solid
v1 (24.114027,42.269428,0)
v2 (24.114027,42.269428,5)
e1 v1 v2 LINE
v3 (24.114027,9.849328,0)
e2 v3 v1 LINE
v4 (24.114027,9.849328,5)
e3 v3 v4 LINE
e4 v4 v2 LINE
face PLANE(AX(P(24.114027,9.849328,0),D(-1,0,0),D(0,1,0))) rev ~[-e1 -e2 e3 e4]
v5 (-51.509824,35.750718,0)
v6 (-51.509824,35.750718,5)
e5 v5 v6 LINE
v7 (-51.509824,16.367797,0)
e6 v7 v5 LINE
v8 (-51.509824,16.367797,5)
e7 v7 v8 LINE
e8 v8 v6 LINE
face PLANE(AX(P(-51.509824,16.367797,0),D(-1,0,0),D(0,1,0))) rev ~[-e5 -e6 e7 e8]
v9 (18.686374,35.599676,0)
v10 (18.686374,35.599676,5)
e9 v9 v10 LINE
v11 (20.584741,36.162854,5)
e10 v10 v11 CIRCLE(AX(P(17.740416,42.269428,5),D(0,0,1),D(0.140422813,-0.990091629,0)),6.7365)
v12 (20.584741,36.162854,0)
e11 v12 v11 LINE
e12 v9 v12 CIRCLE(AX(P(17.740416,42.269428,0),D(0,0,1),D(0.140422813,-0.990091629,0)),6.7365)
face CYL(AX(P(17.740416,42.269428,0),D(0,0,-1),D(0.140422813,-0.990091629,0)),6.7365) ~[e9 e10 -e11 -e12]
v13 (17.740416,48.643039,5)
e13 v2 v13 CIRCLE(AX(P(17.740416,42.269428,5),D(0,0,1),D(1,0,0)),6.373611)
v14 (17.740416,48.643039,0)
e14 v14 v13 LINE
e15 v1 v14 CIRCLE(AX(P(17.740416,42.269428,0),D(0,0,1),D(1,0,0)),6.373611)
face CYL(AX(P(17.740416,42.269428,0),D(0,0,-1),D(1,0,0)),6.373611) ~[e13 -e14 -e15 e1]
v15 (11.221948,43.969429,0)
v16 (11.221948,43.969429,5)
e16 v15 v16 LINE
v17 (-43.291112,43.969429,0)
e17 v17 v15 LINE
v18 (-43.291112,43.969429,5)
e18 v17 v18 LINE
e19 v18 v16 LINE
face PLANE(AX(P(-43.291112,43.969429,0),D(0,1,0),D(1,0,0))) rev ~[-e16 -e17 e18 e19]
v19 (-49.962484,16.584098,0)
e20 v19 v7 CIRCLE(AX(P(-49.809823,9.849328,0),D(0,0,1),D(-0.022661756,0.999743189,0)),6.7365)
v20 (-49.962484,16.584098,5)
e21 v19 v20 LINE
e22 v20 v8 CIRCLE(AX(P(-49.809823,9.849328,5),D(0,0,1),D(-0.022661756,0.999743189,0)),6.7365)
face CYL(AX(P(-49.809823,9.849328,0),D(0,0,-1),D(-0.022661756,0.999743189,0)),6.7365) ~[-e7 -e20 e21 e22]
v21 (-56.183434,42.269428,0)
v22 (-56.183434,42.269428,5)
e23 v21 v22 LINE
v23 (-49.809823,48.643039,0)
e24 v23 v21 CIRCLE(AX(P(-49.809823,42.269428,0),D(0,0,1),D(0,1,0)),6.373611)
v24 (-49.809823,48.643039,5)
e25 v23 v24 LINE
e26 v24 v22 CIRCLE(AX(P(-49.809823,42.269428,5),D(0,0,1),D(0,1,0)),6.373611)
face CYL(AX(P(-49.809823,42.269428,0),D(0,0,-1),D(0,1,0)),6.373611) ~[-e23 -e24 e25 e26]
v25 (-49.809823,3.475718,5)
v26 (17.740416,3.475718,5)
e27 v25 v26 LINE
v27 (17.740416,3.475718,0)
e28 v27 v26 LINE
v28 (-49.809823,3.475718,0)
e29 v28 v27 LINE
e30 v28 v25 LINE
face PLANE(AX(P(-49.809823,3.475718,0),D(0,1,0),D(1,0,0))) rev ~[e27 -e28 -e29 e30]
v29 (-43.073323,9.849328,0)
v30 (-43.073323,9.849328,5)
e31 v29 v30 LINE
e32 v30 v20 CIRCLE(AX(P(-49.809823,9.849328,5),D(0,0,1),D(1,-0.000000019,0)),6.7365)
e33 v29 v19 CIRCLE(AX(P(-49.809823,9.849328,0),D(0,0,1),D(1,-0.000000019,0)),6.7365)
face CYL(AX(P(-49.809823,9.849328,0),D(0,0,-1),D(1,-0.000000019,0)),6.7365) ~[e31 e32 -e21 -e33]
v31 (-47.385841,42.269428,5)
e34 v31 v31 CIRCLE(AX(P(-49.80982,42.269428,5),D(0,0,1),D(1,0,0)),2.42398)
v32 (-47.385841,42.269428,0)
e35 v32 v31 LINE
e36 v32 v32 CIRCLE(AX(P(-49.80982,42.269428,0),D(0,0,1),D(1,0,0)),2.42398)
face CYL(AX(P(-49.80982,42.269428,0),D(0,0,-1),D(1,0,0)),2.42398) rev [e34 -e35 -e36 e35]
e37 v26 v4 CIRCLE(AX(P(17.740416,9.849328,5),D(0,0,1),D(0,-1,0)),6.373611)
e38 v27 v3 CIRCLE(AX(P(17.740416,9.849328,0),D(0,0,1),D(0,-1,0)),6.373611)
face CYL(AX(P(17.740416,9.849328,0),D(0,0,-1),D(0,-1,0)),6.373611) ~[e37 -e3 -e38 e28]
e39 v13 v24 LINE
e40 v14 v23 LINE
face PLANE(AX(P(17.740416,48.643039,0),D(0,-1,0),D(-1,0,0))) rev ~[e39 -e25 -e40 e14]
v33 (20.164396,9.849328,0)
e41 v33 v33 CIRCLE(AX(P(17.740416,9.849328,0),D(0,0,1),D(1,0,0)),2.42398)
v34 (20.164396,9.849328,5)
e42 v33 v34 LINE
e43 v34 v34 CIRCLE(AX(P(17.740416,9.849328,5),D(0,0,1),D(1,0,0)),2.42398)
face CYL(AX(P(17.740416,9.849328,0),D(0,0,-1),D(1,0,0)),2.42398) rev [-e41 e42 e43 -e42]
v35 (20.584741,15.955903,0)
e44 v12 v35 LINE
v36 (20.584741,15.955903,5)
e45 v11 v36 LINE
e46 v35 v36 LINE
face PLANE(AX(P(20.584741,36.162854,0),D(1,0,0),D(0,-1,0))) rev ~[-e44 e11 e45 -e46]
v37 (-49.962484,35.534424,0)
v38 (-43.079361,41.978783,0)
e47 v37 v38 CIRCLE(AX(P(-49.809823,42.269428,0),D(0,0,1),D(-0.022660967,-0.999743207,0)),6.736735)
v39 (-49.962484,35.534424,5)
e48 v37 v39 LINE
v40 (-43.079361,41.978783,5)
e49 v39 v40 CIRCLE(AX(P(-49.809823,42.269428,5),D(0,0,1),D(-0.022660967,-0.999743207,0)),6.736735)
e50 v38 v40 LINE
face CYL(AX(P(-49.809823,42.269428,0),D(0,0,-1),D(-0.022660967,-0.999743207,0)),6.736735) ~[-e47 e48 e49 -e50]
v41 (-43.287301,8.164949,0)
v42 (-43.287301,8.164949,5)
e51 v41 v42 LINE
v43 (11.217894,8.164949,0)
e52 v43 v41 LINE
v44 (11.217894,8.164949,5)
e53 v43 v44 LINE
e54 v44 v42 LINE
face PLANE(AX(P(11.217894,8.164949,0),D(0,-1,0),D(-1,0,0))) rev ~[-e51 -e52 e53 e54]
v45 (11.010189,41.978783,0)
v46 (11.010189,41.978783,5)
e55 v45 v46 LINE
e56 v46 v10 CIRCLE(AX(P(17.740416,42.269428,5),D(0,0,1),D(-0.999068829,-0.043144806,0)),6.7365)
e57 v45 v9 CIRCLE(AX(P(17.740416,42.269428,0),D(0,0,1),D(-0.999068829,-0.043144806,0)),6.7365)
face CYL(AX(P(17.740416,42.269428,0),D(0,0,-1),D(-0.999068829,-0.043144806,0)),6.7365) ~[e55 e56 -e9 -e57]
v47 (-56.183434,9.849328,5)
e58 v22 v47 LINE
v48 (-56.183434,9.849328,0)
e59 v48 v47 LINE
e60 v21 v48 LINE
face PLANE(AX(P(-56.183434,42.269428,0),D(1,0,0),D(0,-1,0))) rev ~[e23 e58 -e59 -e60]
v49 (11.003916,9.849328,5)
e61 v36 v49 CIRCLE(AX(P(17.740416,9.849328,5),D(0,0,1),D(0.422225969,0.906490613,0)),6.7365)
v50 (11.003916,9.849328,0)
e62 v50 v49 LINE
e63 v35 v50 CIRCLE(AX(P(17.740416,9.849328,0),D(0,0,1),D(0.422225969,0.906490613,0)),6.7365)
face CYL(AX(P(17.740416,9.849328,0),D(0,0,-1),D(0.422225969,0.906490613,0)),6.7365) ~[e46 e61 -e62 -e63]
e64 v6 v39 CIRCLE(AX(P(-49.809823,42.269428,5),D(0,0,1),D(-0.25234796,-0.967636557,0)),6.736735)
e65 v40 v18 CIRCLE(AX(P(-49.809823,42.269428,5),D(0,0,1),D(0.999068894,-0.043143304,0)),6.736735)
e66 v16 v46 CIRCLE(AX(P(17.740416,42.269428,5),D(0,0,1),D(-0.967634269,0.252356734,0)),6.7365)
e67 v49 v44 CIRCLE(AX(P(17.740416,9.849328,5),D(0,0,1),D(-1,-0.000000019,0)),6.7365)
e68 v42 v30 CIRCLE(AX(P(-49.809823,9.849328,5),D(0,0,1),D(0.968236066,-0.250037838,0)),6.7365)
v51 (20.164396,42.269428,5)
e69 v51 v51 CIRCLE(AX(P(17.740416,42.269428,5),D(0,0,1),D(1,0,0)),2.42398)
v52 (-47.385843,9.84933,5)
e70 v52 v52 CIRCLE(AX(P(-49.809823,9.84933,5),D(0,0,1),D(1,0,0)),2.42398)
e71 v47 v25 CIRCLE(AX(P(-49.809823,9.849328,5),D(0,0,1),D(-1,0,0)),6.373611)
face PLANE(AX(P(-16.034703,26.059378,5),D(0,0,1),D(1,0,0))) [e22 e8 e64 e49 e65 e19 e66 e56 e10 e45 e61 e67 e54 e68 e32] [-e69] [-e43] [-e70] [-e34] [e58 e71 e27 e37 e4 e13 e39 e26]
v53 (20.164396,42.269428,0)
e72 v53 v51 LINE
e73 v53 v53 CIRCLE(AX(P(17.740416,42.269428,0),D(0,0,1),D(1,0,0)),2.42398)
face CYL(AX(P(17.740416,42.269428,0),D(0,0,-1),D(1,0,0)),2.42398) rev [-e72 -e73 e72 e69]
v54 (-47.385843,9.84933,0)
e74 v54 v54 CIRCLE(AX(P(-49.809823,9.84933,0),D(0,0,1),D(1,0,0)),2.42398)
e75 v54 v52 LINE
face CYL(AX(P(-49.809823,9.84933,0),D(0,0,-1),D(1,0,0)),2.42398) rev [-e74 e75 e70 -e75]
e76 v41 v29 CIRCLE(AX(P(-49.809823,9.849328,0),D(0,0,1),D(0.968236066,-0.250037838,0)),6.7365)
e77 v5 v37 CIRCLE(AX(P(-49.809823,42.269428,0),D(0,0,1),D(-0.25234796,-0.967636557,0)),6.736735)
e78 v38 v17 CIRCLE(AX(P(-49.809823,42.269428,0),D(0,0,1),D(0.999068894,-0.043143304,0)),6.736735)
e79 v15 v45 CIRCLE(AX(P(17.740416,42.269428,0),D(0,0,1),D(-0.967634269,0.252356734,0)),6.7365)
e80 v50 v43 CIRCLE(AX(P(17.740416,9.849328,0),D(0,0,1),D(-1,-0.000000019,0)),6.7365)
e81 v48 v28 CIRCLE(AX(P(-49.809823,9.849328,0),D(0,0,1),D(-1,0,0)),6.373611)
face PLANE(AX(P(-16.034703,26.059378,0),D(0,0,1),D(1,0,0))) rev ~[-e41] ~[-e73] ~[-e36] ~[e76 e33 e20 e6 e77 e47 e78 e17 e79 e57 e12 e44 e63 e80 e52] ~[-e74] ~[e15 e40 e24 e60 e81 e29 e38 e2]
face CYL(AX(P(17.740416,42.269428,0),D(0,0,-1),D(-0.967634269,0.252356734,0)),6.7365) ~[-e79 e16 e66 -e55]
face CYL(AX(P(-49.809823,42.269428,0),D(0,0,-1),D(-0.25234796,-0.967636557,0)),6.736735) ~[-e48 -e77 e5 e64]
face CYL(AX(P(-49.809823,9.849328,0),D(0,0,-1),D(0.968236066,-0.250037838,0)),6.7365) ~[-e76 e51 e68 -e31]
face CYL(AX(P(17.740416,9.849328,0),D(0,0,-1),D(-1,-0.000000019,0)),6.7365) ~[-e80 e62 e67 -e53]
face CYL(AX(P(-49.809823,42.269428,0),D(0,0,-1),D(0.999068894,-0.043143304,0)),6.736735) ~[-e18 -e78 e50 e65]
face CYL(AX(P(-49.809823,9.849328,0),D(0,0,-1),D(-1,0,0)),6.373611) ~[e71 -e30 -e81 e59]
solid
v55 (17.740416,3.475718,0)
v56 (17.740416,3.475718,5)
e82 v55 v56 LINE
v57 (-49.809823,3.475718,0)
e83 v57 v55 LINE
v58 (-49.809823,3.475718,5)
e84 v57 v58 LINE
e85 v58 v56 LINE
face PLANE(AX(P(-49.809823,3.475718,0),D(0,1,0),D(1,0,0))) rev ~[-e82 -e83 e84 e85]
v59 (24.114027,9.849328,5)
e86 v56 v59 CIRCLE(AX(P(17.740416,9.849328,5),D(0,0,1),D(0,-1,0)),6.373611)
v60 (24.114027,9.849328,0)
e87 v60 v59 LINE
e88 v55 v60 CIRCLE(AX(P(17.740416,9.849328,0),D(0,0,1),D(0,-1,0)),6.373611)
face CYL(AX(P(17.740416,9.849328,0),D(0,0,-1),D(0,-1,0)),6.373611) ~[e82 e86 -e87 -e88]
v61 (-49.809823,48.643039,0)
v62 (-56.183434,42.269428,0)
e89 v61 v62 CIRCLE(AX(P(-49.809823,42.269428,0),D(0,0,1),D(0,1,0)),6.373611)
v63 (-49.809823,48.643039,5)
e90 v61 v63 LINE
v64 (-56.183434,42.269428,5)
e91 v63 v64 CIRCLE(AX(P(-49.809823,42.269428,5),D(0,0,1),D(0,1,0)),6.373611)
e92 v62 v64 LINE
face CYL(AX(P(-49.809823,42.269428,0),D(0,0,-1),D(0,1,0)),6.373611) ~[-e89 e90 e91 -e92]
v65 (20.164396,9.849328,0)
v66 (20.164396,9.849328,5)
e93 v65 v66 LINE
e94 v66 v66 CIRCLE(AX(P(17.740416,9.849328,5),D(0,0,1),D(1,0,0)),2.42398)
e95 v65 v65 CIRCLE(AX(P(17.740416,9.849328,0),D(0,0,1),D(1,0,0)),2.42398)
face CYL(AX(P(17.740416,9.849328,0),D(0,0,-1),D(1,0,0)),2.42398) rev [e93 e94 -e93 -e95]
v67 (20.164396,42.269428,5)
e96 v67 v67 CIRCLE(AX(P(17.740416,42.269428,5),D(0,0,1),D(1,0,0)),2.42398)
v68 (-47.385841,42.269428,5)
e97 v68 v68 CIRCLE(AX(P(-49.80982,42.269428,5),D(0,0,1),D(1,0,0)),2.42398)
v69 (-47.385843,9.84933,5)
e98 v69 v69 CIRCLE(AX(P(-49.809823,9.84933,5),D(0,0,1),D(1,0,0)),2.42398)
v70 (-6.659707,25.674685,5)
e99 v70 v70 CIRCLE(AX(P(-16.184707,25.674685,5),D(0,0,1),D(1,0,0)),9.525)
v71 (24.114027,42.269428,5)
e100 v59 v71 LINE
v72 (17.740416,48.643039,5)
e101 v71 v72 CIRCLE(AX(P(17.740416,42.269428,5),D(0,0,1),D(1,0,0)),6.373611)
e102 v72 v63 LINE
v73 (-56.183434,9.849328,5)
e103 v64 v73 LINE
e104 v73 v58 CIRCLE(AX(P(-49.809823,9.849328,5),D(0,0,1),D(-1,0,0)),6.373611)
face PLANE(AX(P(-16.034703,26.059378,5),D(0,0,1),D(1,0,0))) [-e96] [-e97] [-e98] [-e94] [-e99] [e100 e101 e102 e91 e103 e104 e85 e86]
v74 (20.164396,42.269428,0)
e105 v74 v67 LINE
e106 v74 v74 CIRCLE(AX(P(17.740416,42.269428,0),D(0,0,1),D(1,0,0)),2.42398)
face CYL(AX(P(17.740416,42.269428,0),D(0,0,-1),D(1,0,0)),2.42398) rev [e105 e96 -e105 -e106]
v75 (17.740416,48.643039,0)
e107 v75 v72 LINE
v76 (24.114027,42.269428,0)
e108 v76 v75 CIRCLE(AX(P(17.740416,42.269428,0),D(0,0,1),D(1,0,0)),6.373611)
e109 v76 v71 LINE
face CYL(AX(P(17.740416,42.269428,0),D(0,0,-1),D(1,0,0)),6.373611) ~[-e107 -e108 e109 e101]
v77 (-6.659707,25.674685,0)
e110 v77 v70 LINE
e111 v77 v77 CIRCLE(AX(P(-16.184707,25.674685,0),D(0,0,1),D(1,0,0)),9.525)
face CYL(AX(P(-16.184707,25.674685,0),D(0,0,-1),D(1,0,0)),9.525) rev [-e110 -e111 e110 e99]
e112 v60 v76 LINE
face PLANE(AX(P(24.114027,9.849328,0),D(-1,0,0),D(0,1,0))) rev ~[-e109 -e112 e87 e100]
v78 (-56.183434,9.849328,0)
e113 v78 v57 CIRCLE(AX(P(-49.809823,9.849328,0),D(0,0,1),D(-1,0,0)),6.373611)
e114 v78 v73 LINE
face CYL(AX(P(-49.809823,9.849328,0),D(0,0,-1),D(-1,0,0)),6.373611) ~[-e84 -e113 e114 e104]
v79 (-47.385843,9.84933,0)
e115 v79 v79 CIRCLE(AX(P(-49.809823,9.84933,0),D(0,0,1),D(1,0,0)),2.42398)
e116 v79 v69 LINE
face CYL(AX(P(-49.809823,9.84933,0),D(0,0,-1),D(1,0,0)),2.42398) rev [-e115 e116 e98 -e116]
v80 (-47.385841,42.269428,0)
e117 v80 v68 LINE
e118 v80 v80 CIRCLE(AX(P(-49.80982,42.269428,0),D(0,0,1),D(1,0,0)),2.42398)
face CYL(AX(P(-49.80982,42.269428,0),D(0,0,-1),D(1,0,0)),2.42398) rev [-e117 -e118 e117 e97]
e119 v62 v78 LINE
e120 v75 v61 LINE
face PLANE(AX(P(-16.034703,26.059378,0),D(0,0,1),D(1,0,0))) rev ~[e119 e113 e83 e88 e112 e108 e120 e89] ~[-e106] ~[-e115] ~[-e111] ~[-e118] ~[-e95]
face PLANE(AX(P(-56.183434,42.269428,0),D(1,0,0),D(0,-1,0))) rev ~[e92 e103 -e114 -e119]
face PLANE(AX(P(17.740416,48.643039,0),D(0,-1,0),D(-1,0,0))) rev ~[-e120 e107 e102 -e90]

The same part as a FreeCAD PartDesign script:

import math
import FreeCAD as App
import Part
import Sketcher

V = App.Vector

doc = App.newDocument("Part")
body = doc.addObject("PartDesign::Body", "Body")

sketch1 = body.newObject("Sketcher::SketchObject", "Sketch")
sketch1.AttachmentSupport = (doc.getObject("XY_Plane"), [""])
sketch1.MapMode = "FlatFace"
sketch1.addGeometry([
    Part.LineSegment(V(17.7, 48.6, 0), V(-49.8, 48.6, 0)),
    Part.ArcOfCircle(Part.Circle(V(-49.8, 42.3, 0), V(0, 0, 1), 6.4), math.radians(90), math.radians(180)),
    Part.LineSegment(V(-56.2, 42.3, 0), V(-56.2, 9.8, 0)),
    Part.ArcOfCircle(Part.Circle(V(-49.8, 9.8, 0), V(0, 0, 1), 6.4), math.radians(180), math.radians(270)),
    Part.LineSegment(V(-49.8, 3.5, 0), V(17.7, 3.5, 0)),
    Part.ArcOfCircle(Part.Circle(V(17.7, 9.8, 0), V(0, 0, 1), 6.4), math.radians(-90), math.radians(0)),
    Part.LineSegment(V(24.1, 9.8, 0), V(24.1, 42.3, 0)),
    Part.ArcOfCircle(Part.Circle(V(17.7, 42.3, 0), V(0, 0, 1), 6.4), math.radians(0), math.radians(90)),
    Part.Circle(V(-49.8, 9.8, 0), V(0, 0, 1), 2.4),
    Part.Circle(V(17.7, 9.8, 0), V(0, 0, 1), 2.4),
    Part.Circle(V(-49.8, 42.3, 0), V(0, 0, 1), 2.4),
    Part.ArcOfCircle(Part.Circle(V(17.7, 42.3, 0), V(0, 0, 1), 6.7), math.radians(-178), math.radians(-82)),
    Part.ArcOfCircle(Part.Circle(V(17.7, 42.3, 0), V(0, 0, 1), 6.7), math.radians(-81.93), math.radians(-65.02)),
    Part.LineSegment(V(20.6, 36.2, 0), V(20.6, 16, 0)),
    Part.ArcOfCircle(Part.Circle(V(17.7, 9.8, 0), V(0, 0, 1), 6.7), math.radians(65), math.radians(180)),
    Part.ArcOfCircle(Part.Circle(V(17.7, 9.8, 0), V(0, 0, 1), 6.7), math.radians(-180), math.radians(-165.52)),
    Part.LineSegment(V(11.2, 8.2, 0), V(-43.3, 8.2, 0)),
    Part.ArcOfCircle(Part.Circle(V(-49.8, 9.8, 0), V(0, 0, 1), 6.7), math.radians(-14.48), math.radians(0)),
    Part.ArcOfCircle(Part.Circle(V(-49.8, 9.8, 0), V(0, 0, 1), 6.7), math.radians(0), math.radians(91)),
    Part.ArcOfCircle(Part.Circle(V(-49.8, 9.8, 0), V(0, 0, 1), 6.7), math.radians(91.3), math.radians(104.62)),
    Part.LineSegment(V(-51.5, 16.4, 0), V(-51.5, 35.8, 0)),
    Part.ArcOfCircle(Part.Circle(V(-49.8, 42.3, 0), V(0, 0, 1), 6.7), math.radians(-104.62), math.radians(-91.3)),
    Part.ArcOfCircle(Part.Circle(V(-49.8, 42.3, 0), V(0, 0, 1), 6.7), math.radians(-91), math.radians(-2)),
    Part.ArcOfCircle(Part.Circle(V(-49.8, 42.3, 0), V(0, 0, 1), 6.7), math.radians(-2.47), math.radians(14.62)),
    Part.LineSegment(V(-43.3, 44, 0), V(11.2, 44, 0)),
    Part.ArcOfCircle(Part.Circle(V(17.7, 42.3, 0), V(0, 0, 1), 6.7), math.radians(165.38), math.radians(182.47)),
    Part.Circle(V(17.7, 42.3, 0), V(0, 0, 1), 2.4),
], False)
sketch1.addConstraint([
    Sketcher.Constraint("Tangent", 0, 2, 1, 1),
    Sketcher.Constraint("Tangent", 1, 2, 2, 1),
    Sketcher.Constraint("Tangent", 2, 2, 3, 1),
    Sketcher.Constraint("Tangent", 3, 2, 4, 1),
    Sketcher.Constraint("Tangent", 4, 2, 5, 1),
    Sketcher.Constraint("Tangent", 5, 2, 6, 1),
    Sketcher.Constraint("Tangent", 6, 2, 7, 1),
    Sketcher.Constraint("Tangent", 7, 2, 0, 1),
    Sketcher.Constraint("Tangent", 11, 2, 12, 1),
    Sketcher.Constraint("Coincident", 12, 2, 13, 1),
    Sketcher.Constraint("Coincident", 13, 2, 14, 1),
    Sketcher.Constraint("Tangent", 14, 2, 15, 1),
    Sketcher.Constraint("Coincident", 15, 2, 16, 1),
    Sketcher.Constraint("Coincident", 16, 2, 17, 1),
    Sketcher.Constraint("Tangent", 17, 2, 18, 1),
    Sketcher.Constraint("Tangent", 18, 2, 19, 1),
    Sketcher.Constraint("Coincident", 19, 2, 20, 1),
    Sketcher.Constraint("Coincident", 20, 2, 21, 1),
    Sketcher.Constraint("Tangent", 21, 2, 22, 1),
    Sketcher.Constraint("Tangent", 22, 2, 23, 1),
    Sketcher.Constraint("Coincident", 23, 2, 24, 1),
    Sketcher.Constraint("Coincident", 24, 2, 25, 1),
    Sketcher.Constraint("Tangent", 25, 2, 11, 1),
    Sketcher.Constraint("Horizontal", 0),
    Sketcher.Constraint("Vertical", 2),
    Sketcher.Constraint("Horizontal", 4),
    Sketcher.Constraint("Vertical", 6),
    Sketcher.Constraint("Vertical", 13),
    Sketcher.Constraint("Horizontal", 16),
    Sketcher.Constraint("Vertical", 20),
    Sketcher.Constraint("Horizontal", 24),
    Sketcher.Constraint("Coincident", 8, 3, 3, 3),
    Sketcher.Constraint("Coincident", 9, 3, 5, 3),
    Sketcher.Constraint("Coincident", 10, 3, 1, 3),
    Sketcher.Constraint("Coincident", 11, 3, 7, 3),
    Sketcher.Constraint("Coincident", 14, 3, 5, 3),
    Sketcher.Constraint("Coincident", 17, 3, 3, 3),
    Sketcher.Constraint("Coincident", 19, 3, 3, 3),
    Sketcher.Constraint("Coincident", 21, 3, 1, 3),
    Sketcher.Constraint("Coincident", 23, 3, 1, 3),
    Sketcher.Constraint("Coincident", 26, 3, 7, 3),
    Sketcher.Constraint("Equal", 1, 3),
    Sketcher.Constraint("Equal", 3, 5),
    Sketcher.Constraint("Equal", 5, 7),
    Sketcher.Constraint("Equal", 8, 9),
    Sketcher.Constraint("Equal", 9, 10),
    Sketcher.Constraint("Equal", 11, 12),
    Sketcher.Constraint("Equal", 12, 14),
    Sketcher.Constraint("Equal", 14, 15),
    Sketcher.Constraint("Equal", 15, 17),
    Sketcher.Constraint("Equal", 19, 25),
    Sketcher.Constraint("Equal", 10, 26),
    Sketcher.Constraint("Horizontal", 5, 2, 14, 2),
    Sketcher.Constraint("Horizontal", 14, 2, 17, 2),
    Sketcher.Constraint("Horizontal", 22, 2, 25, 2),
    Sketcher.Constraint("Vertical", 18, 2, 21, 2),
    Sketcher.Constraint("Radius", 11, 6.7365),
    Sketcher.Constraint("DistanceX", 19, 2, 8, 3, 1.700001),
    Sketcher.Constraint("DistanceY", 10, 3, 23, 2, 1.700001),
    Sketcher.Constraint("Diameter", 8, 4.847959),
    Sketcher.Constraint("Radius", 1, 6.373611),
    Sketcher.Constraint("DistanceY", 2, 2, 2, 1, 32.4201),
    Sketcher.Constraint("Radius", 21, 6.736735),
    Sketcher.Constraint("DistanceX", 0, 2, 0, 1, 67.550239),
    Sketcher.Constraint("DistanceY", 13, 2, 13, 1, 20.206952),
    Sketcher.Constraint("DistanceX", 16, 2, -1, 1, 43.287301),
    Sketcher.Constraint("DistanceY", -1, 1, 18, 2, 16.584098),
    Sketcher.Constraint("DistanceY", 19, 2, 18, 2, 0.216302),
    Sketcher.Constraint("DistanceX", 16, 2, 16, 1, 54.505194),
    Sketcher.Constraint("DistanceX", 22, 2, -1, 1, 43.079361),
    Sketcher.Constraint("DistanceX", 12, 3, 11, 2, 0.945958),
])
pad1 = body.newObject("PartDesign::Pad", "Pad")
pad1.Profile = sketch1
pad1.Length = 5
body2 = doc.addObject("PartDesign::Body", "Body001")

sketch2 = body2.newObject("Sketcher::SketchObject", "Sketch001")
sketch2.AttachmentSupport = (doc.getObject("XY_Plane001"), [""])
sketch2.MapMode = "FlatFace"
sketch2.addGeometry([
    Part.LineSegment(V(17.7, 48.6, 0), V(-49.8, 48.6, 0)),
    Part.ArcOfCircle(Part.Circle(V(-49.8, 42.3, 0), V(0, 0, 1), 6.4), math.radians(90), math.radians(180)),
    Part.LineSegment(V(-56.2, 42.3, 0), V(-56.2, 9.8, 0)),
    Part.ArcOfCircle(Part.Circle(V(-49.8, 9.8, 0), V(0, 0, 1), 6.4), math.radians(180), math.radians(270)),
    Part.LineSegment(V(-49.8, 3.5, 0), V(17.7, 3.5, 0)),
    Part.ArcOfCircle(Part.Circle(V(17.7, 9.8, 0), V(0, 0, 1), 6.4), math.radians(-90), math.radians(0)),
    Part.LineSegment(V(24.1, 9.8, 0), V(24.1, 42.3, 0)),
    Part.ArcOfCircle(Part.Circle(V(17.7, 42.3, 0), V(0, 0, 1), 6.4), math.radians(0), math.radians(90)),
    Part.Circle(V(-49.8, 9.8, 0), V(0, 0, 1), 2.4),
    Part.Circle(V(17.7, 9.8, 0), V(0, 0, 1), 2.4),
    Part.Circle(V(-49.8, 42.3, 0), V(0, 0, 1), 2.4),
    Part.Circle(V(17.7, 42.3, 0), V(0, 0, 1), 2.4),
    Part.Circle(V(-16.2, 25.7, 0), V(0, 0, 1), 9.5),
], False)
sketch2.addConstraint([
    Sketcher.Constraint("Tangent", 0, 2, 1, 1),
    Sketcher.Constraint("Tangent", 1, 2, 2, 1),
    Sketcher.Constraint("Tangent", 2, 2, 3, 1),
    Sketcher.Constraint("Tangent", 3, 2, 4, 1),
    Sketcher.Constraint("Tangent", 4, 2, 5, 1),
    Sketcher.Constraint("Tangent", 5, 2, 6, 1),
    Sketcher.Constraint("Tangent", 6, 2, 7, 1),
    Sketcher.Constraint("Tangent", 7, 2, 0, 1),
    Sketcher.Constraint("Horizontal", 0),
    Sketcher.Constraint("Vertical", 2),
    Sketcher.Constraint("Horizontal", 4),
    Sketcher.Constraint("Vertical", 6),
    Sketcher.Constraint("Coincident", 8, 3, 3, 3),
    Sketcher.Constraint("Coincident", 9, 3, 5, 3),
    Sketcher.Constraint("Coincident", 10, 3, 1, 3),
    Sketcher.Constraint("Coincident", 11, 3, 7, 3),
    Sketcher.Constraint("Equal", 1, 3),
    Sketcher.Constraint("Equal", 3, 5),
    Sketcher.Constraint("Equal", 5, 7),
    Sketcher.Constraint("Equal", 8, 9),
    Sketcher.Constraint("Equal", 9, 10),
    Sketcher.Constraint("Equal", 10, 11),
    Sketcher.Constraint("Diameter", 12, 19.05),
    Sketcher.Constraint("Diameter", 8, 4.847959),
    Sketcher.Constraint("Radius", 1, 6.373611),
    Sketcher.Constraint("DistanceY", 2, 2, 2, 1, 32.4201),
    Sketcher.Constraint("DistanceX", 0, 2, 0, 1, 67.550239),
    Sketcher.Constraint("DistanceY", -1, 1, 1, 3, 42.269428),
    Sketcher.Constraint("DistanceX", 10, 3, -1, 1, 49.80982),
    Sketcher.Constraint("DistanceX", 12, 3, -1, 1, 16.184707),
    Sketcher.Constraint("DistanceY", -1, 1, 12, 3, 25.674685),
])
pad2 = body2.newObject("PartDesign::Pad", "Pad001")
pad2.Profile = sketch2
pad2.Length = 5

doc.recompute()
